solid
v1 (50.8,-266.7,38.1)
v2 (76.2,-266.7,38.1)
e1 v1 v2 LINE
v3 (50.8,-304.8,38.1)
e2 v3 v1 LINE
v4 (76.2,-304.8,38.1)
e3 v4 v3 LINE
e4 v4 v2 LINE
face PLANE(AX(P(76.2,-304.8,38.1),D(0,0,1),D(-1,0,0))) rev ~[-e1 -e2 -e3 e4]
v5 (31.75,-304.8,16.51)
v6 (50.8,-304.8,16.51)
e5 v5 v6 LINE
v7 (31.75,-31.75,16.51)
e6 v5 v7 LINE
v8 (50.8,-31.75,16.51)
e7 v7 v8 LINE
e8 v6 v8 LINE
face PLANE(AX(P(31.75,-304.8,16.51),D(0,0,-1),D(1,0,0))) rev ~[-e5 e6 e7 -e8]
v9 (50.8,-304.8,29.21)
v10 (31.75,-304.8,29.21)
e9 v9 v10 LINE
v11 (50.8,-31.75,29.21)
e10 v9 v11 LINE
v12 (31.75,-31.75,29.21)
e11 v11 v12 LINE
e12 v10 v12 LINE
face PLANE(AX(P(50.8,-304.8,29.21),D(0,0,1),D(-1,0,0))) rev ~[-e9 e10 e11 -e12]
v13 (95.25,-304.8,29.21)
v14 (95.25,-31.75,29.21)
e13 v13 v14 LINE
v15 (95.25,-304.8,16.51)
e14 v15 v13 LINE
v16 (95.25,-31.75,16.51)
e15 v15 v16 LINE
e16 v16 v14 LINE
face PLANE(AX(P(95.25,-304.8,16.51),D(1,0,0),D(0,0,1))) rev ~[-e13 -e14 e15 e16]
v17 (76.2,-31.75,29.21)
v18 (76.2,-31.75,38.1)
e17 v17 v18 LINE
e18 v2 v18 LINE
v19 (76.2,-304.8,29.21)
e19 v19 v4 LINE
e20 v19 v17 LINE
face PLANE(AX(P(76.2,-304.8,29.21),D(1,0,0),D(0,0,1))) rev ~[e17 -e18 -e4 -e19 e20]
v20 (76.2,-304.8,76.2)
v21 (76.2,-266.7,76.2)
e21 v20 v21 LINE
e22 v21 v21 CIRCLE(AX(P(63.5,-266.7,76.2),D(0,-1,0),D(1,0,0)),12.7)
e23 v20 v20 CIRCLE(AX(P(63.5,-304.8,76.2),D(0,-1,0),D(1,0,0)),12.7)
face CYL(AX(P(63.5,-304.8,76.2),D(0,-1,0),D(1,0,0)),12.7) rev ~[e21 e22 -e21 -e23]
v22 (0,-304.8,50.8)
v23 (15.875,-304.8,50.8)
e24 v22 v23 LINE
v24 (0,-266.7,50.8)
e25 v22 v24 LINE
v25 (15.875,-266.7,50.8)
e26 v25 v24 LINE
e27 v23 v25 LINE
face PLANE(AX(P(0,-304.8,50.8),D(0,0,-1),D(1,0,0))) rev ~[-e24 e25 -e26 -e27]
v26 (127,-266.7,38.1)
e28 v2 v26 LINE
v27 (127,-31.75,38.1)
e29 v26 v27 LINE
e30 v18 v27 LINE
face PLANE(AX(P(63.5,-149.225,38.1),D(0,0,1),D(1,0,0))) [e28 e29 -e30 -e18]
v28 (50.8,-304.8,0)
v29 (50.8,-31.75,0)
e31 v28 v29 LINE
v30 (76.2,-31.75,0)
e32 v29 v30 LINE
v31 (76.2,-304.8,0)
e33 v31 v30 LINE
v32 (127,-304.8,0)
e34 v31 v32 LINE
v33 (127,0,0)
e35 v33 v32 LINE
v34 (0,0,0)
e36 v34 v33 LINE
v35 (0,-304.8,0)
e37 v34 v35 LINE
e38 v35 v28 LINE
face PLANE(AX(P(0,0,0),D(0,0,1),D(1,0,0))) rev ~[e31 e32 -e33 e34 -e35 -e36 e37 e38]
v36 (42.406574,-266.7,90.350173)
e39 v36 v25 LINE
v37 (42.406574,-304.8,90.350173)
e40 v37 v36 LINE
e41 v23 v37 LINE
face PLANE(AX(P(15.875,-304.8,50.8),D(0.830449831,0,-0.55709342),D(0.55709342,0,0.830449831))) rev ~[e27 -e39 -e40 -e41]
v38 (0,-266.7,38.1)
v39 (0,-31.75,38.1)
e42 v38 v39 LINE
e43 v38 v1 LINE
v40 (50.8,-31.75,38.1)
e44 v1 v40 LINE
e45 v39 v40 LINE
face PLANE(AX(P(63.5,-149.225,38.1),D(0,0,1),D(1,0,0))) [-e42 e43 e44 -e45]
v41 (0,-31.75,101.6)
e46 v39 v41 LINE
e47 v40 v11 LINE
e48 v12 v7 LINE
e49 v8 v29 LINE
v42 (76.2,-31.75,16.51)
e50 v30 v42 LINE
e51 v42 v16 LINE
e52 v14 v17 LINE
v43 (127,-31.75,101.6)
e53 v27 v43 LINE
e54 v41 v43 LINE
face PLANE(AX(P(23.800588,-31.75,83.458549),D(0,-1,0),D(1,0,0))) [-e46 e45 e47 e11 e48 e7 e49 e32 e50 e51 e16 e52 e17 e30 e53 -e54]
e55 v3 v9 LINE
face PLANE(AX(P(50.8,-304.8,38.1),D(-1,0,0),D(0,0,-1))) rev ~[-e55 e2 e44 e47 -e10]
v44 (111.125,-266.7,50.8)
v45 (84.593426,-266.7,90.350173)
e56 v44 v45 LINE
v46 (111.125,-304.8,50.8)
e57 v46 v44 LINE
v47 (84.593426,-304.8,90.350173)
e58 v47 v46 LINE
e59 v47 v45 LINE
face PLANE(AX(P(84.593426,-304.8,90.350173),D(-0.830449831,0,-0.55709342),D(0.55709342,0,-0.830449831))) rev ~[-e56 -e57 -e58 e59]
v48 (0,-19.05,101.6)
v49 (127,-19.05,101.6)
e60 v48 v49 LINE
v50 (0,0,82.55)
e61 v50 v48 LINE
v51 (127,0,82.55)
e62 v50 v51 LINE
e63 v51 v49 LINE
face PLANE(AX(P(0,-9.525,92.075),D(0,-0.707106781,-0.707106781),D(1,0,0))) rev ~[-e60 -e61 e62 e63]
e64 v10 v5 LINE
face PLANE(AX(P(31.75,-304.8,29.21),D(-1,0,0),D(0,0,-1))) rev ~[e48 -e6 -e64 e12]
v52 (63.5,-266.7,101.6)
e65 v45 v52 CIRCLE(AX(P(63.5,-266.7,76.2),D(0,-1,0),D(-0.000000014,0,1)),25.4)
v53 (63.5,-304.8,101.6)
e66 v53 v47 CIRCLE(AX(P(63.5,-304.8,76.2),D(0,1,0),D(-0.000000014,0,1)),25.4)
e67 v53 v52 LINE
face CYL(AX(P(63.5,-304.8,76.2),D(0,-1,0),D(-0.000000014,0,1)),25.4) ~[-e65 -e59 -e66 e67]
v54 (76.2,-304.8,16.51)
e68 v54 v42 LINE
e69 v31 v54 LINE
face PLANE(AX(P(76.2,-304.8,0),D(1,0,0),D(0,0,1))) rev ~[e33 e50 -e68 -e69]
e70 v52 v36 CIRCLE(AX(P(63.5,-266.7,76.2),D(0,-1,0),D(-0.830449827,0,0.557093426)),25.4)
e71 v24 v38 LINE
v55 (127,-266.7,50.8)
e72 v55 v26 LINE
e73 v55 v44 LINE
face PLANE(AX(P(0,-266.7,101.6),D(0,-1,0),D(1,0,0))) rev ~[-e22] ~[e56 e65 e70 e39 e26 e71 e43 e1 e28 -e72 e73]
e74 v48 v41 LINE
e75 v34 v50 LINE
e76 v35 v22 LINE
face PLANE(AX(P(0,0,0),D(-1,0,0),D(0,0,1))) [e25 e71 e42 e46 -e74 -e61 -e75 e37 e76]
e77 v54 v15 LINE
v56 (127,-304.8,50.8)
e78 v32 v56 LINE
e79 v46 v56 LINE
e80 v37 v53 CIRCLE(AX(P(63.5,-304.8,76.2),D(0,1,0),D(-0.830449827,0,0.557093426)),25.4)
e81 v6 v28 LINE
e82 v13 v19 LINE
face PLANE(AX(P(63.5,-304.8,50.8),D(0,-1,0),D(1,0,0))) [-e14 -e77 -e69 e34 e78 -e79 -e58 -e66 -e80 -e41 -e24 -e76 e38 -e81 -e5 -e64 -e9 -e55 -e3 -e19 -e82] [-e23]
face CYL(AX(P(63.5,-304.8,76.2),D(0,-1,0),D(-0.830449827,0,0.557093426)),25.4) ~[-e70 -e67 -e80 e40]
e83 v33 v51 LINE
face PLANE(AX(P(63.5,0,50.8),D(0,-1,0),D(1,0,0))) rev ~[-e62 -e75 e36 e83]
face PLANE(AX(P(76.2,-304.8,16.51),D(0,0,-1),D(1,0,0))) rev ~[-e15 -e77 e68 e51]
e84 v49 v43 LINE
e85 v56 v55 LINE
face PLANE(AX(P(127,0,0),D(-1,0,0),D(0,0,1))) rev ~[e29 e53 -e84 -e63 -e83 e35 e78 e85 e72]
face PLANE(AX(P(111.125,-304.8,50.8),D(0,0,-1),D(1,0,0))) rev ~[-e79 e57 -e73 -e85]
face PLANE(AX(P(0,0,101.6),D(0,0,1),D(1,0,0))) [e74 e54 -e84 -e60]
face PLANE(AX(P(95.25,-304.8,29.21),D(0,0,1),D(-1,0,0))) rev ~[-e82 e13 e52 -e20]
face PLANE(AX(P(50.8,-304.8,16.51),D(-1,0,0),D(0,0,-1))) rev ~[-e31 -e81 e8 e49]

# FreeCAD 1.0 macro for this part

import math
import FreeCAD as App
import Part
import Sketcher

V = App.Vector
Q = App.Units.Quantity


def edges_at(feature, points):
    """Names of the edges that pass closest to the given points."""
    edges = feature.Shape.Edges
    near = lambda p: min(range(len(edges)), key=lambda i: edges[i].distToShape(Part.Vertex(*p))[0])
    return sorted({f"Edge{near(p) + 1}" for p in points})


def add_polygon(sketch, points):
    """Adds a closed chain of lines whose ends are joined by coincident constraints."""
    first, n = sketch.GeometryCount, len(points)
    for a, b in zip(points, points[1:] + points[:1]):
        sketch.addGeometry(Part.LineSegment(App.Vector(*a, 0), App.Vector(*b, 0)), False)
    for i in range(n):
        sketch.addConstraint(Sketcher.Constraint("Coincident", first + i, 2, first + (i + 1) % n, 1))

doc = App.newDocument("Part")
body = doc.addObject("PartDesign::Body", "Body")

# Sketch on XZ plane
sketch1 = doc.addObject("Sketcher::SketchObject", "Sketch")
body.addObject(sketch1)
sketch1.AttachmentSupport = (doc.XZ_Plane, [""])
sketch1.MapMode = "FlatFace"
add_polygon(sketch1, [(0, 101.6), (0, 0), (127, 0), (127, 101.6)])  # lines 0-3
sketch1.addConstraint([
    Sketcher.Constraint("Vertical", 0),
    Sketcher.Constraint("Horizontal", 1),
    Sketcher.Constraint("Vertical", 2),
    Sketcher.Constraint("Horizontal", 3),
    Sketcher.Constraint("Coincident", 0, 2, -1, 1),
    Sketcher.Constraint("DistanceX", 1, 1, 1, 2, Q("5 in")),
    Sketcher.Constraint("DistanceY", 0, 2, 0, 1, Q("4 in")),
])
pad1 = doc.addObject("PartDesign::Pad", "Pad")
body.addObject(pad1)
pad1.Profile = sketch1
pad1.Length = Q("12 in")

# Sketch on XZ plane
sketch2 = doc.addObject("Sketcher::SketchObject", "Sketch001")
body.addObject(sketch2)
sketch2.AttachmentSupport = (doc.XZ_Plane, [""])
sketch2.MapMode = "FlatFace"
sketch2.AttachmentOffset = App.Placement(V(0, 0, 12 * 25.4), App.Rotation())
add_polygon(sketch2, [(50.8, 16.51), (50.8, 0), (76.2, 0), (76.2, 16.51), (95.25, 16.51), (95.25, 29.21), (76.2, 29.21), (76.2, 38.1), (50.8, 38.1), (50.8, 29.21), (31.75, 29.21), (31.75, 16.51)])  # lines 0-11
sketch2.addConstraint([
    Sketcher.Constraint("Vertical", 0),
    Sketcher.Constraint("Horizontal", 1),
    Sketcher.Constraint("Vertical", 2),
    Sketcher.Constraint("Horizontal", 3),
    Sketcher.Constraint("Vertical", 4),
    Sketcher.Constraint("Horizontal", 5),
    Sketcher.Constraint("Vertical", 6),
    Sketcher.Constraint("Horizontal", 7),
    Sketcher.Constraint("Vertical", 8),
    Sketcher.Constraint("Horizontal", 9),
    Sketcher.Constraint("Vertical", 10),
    Sketcher.Constraint("Horizontal", 11),
    Sketcher.Constraint("PointOnObject", 0, 2, -1),
    Sketcher.Constraint("Horizontal", 5, 2, 8, 2),
    Sketcher.Constraint("Horizontal", 3, 2, 10, 2),
    Sketcher.Constraint("Vertical", 2, 2, 5, 2),
    Sketcher.Constraint("Vertical", 0, 2, 7, 2),
    Sketcher.Constraint("Equal", 5, 9),
    Sketcher.Constraint("DistanceX", 1, 1, 1, 2, Q("1 in")),
    Sketcher.Constraint("DistanceY", 4, 1, 4, 2, Q("0.5 in")),
    Sketcher.Constraint("DistanceX", -1, 1, 0, 2, Q("2 in")),
    Sketcher.Constraint("DistanceX", 3, 1, 3, 2, Q("0.75 in")),
    Sketcher.Constraint("DistanceY", 0, 2, 0, 1, Q("0.65 in")),
    Sketcher.Constraint("DistanceY", 6, 1, 6, 2, Q("0.35 in")),
])
pocket1 = doc.addObject("PartDesign::Pocket", "Pocket")
body.addObject(pocket1)
pocket1.Profile = sketch2
pocket1.Length = Q("10.75 in")

# Sketch on XZ plane
sketch3 = doc.addObject("Sketcher::SketchObject", "Sketch002")
body.addObject(sketch3)
sketch3.AttachmentSupport = (doc.XZ_Plane, [""])
sketch3.MapMode = "FlatFace"
sketch3.AttachmentOffset = App.Placement(V(0, 0, 12 * 25.4), App.Rotation())
sketch3.addGeometry([
    Part.LineSegment(V(0, 101.6, 0), V(0, 50.8, 0)),  # 0
    Part.LineSegment(V(0, 50.8, 0), V(15.875, 50.8, 0)),  # 1
    Part.LineSegment(V(15.875, 50.8, 0), V(42.406574, 90.350173, 0)),  # 2
    Part.ArcOfCircle(Part.Circle(V(63.5, 76.2, 0), V(0, 0, 1), 25.4), math.radians(89.999999), math.radians(146.144974)),  # 3
    Part.LineSegment(V(63.5, 101.6, 0), V(0, 101.6, 0)),  # 4
    Part.LineSegment(V(127, 101.6, 0), V(63.5, 101.6, 0)),  # 5
    Part.ArcOfCircle(Part.Circle(V(63.5, 76.2, 0), V(0, 0, 1), 25.4), math.radians(33.855026), math.radians(90.000001)),  # 6
    Part.LineSegment(V(84.593426, 90.350173, 0), V(111.125, 50.8, 0)),  # 7
    Part.LineSegment(V(111.125, 50.8, 0), V(127, 50.8, 0)),  # 8
    Part.LineSegment(V(127, 50.8, 0), V(127, 101.6, 0)),  # 9
], False)
sketch3.addConstraint([
    Sketcher.Constraint("Coincident", 0, 2, 1, 1),
    Sketcher.Constraint("Coincident", 1, 2, 2, 1),
    Sketcher.Constraint("Tangent", 2, 2, 3, 2),
    Sketcher.Constraint("Tangent", 3, 1, 4, 1),
    Sketcher.Constraint("Coincident", 4, 2, 0, 1),
    Sketcher.Constraint("Tangent", 5, 2, 6, 2),
    Sketcher.Constraint("Tangent", 6, 1, 7, 1),
    Sketcher.Constraint("Coincident", 7, 2, 8, 1),
    Sketcher.Constraint("Coincident", 8, 2, 9, 1),
    Sketcher.Constraint("Coincident", 9, 2, 5, 1),
    Sketcher.Constraint("Vertical", 0),
    Sketcher.Constraint("Horizontal", 1),
    Sketcher.Constraint("Horizontal", 4),
    Sketcher.Constraint("Horizontal", 5),
    Sketcher.Constraint("Horizontal", 8),
    Sketcher.Constraint("Vertical", 9),
    Sketcher.Constraint("Coincident", 6, 3, 3, 3),
    Sketcher.Constraint("Equal", 3, 6),
    Sketcher.Constraint("PointOnObject", 0, 2, -2),
    Sketcher.Constraint("Horizontal", 2, 2, 6, 1),
    Sketcher.Constraint("Horizontal", 1, 2, 7, 2),
    Sketcher.Constraint("Equal", 4, 5),
    Sketcher.Constraint("Radius", 3, Q("1 in")),
    Sketcher.Constraint("DistanceY", 0, 2, 0, 1, Q("2 in")),
    Sketcher.Constraint("DistanceX", 4, 2, 4, 1, Q("2.5 in")),
    Sketcher.Constraint("DistanceY", -1, 1, 3, 3, Q("3 in")),
    Sketcher.Constraint("DistanceX", 1, 1, 1, 2, Q("0.625 in")),
])
pocket2 = doc.addObject("PartDesign::Pocket", "Pocket001")
body.addObject(pocket2)
pocket2.Profile = sketch3
pocket2.Length = Q("10.75 in")

# Sketch on XY plane
sketch4 = doc.addObject("Sketcher::SketchObject", "Sketch003")
body.addObject(sketch4)
sketch4.AttachmentSupport = (doc.XY_Plane, [""])
sketch4.MapMode = "FlatFace"
sketch4.AttachmentOffset = App.Placement(V(0, 0, 4 * 25.4), App.Rotation())
add_polygon(sketch4, [(0, -31.75), (0, -266.7), (127, -266.7), (127, -31.75)])  # lines 0-3
sketch4.addConstraint([
    Sketcher.Constraint("Vertical", 0),
    Sketcher.Constraint("Horizontal", 1),
    Sketcher.Constraint("Vertical", 2),
    Sketcher.Constraint("Horizontal", 3),
    Sketcher.Constraint("PointOnObject", 0, 2, -2),
    Sketcher.Constraint("DistanceX", 1, 1, 1, 2, Q("5 in")),
    Sketcher.Constraint("DistanceY", 0, 2, 0, 1, Q("9.25 in")),
    Sketcher.Constraint("DistanceY", 0, 2, -1, 1, Q("10.5 in")),
])
pocket3 = doc.addObject("PartDesign::Pocket", "Pocket002")
body.addObject(pocket3)
pocket3.Profile = sketch4
pocket3.Length = Q("2.5 in")

# Sketch on XZ plane
sketch5 = doc.addObject("Sketcher::SketchObject", "Sketch004")
body.addObject(sketch5)
sketch5.AttachmentSupport = (doc.XZ_Plane, [""])
sketch5.MapMode = "FlatFace"
sketch5.AttachmentOffset = App.Placement(V(0, 0, 12 * 25.4), App.Rotation())
sketch5.addGeometry(Part.Circle(V(63.5, 76.2, 0), V(0, 0, 1), 12.7), False)
sketch5.addConstraint([
    Sketcher.Constraint("Diameter", 0, Q("1 in")),
    Sketcher.Constraint("DistanceY", -1, 1, 0, 3, Q("3 in")),
    Sketcher.Constraint("DistanceX", -1, 1, 0, 3, Q("2.5 in")),
])
pocket4 = doc.addObject("PartDesign::Pocket", "Pocket003")
body.addObject(pocket4)
pocket4.Profile = sketch5
pocket4.Length = Q("1.5 in")
doc.recompute()

chamfer = doc.addObject("PartDesign::Chamfer", "Chamfer")
body.addObject(chamfer)
chamfer.Base = (pocket4, edges_at(pocket4, [(63.5, 0, 101.6)]))
chamfer.ChamferType = "Two distances"
chamfer.Size = Q("0.75 in")
chamfer.Size2 = Q("0.75 in")

doc.recompute()
